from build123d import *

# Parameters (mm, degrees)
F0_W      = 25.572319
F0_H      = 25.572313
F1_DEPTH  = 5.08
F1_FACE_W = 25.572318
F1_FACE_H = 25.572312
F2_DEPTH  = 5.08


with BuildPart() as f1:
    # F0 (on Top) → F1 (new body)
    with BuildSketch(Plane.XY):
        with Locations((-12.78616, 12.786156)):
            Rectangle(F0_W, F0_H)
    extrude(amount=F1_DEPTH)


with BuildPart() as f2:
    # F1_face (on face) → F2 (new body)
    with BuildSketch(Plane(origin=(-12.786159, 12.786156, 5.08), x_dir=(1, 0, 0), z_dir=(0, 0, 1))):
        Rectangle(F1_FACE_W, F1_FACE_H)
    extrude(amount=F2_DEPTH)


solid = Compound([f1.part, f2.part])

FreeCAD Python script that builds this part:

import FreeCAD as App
import Part
import Sketcher
Q = App.Units.Quantity


def add_polygon(sketch, points):
    """Adds a closed chain of lines whose ends are joined by coincident constraints."""
    first, n = sketch.GeometryCount, len(points)
    for a, b in zip(points, points[1:] + points[:1]):
        sketch.addGeometry(Part.LineSegment(App.Vector(*a, 0), App.Vector(*b, 0)), False)
    for i in range(n):
        sketch.addConstraint(Sketcher.Constraint("Coincident", first + i, 2, first + (i + 1) % n, 1))

doc = App.newDocument("Part")
body = doc.addObject("PartDesign::Body", "Body")

sketch1 = doc.addObject("Sketcher::SketchObject", "Sketch")
body.addObject(sketch1)
sketch1.AttachmentSupport = (doc.XY_Plane, [""])
sketch1.MapMode = "FlatFace"
add_polygon(sketch1, [(-26, 26), (-26, 0), (0, 0), (0, 26)])
sketch1.addConstraint(Sketcher.Constraint("Vertical", 0))
sketch1.addConstraint(Sketcher.Constraint("Horizontal", 1))
sketch1.addConstraint(Sketcher.Constraint("Vertical", 2))
sketch1.addConstraint(Sketcher.Constraint("Horizontal", 3))
sketch1.addConstraint(Sketcher.Constraint("Coincident", 1, 2, -1, 1))
sketch1.addConstraint(Sketcher.Constraint("DistanceX", 1, 1, 1, 2, 25.572319))
sketch1.addConstraint(Sketcher.Constraint("DistanceY", 0, 2, 0, 1, 25.572313))
pad1 = doc.addObject("PartDesign::Pad", "Pad")
body.addObject(pad1)
pad1.Profile = sketch1
pad1.Length = Q("0.2 in")
body2 = doc.addObject("PartDesign::Body", "Body001")

sketch2 = doc.addObject("Sketcher::SketchObject", "Sketch001")
body2.addObject(sketch2)
sketch2.AttachmentSupport = (doc.getObject("XY_Plane001"), [""])
sketch2.MapMode = "FlatFace"
sketch2.AttachmentOffset = App.Placement(App.Vector(0, 0, 0.2 * 25.4), App.Rotation())
add_polygon(sketch2, [(-26, 26), (-26, 0), (0, 0), (0, 26)])
sketch2.addConstraint(Sketcher.Constraint("Vertical", 0))
sketch2.addConstraint(Sketcher.Constraint("Horizontal", 1))
sketch2.addConstraint(Sketcher.Constraint("Vertical", 2))
sketch2.addConstraint(Sketcher.Constraint("Horizontal", 3))
sketch2.addConstraint(Sketcher.Constraint("Coincident", 1, 2, -1, 1))
sketch2.addConstraint(Sketcher.Constraint("DistanceY", 0, 2, 0, 1, 25.572312))
sketch2.addConstraint(Sketcher.Constraint("DistanceX", 1, 1, 1, 2, 25.572318))
pad2 = doc.addObject("PartDesign::Pad", "Pad001")
body2.addObject(pad2)
pad2.Profile = sketch2
pad2.Length = Q("0.2 in")

doc.recompute()
